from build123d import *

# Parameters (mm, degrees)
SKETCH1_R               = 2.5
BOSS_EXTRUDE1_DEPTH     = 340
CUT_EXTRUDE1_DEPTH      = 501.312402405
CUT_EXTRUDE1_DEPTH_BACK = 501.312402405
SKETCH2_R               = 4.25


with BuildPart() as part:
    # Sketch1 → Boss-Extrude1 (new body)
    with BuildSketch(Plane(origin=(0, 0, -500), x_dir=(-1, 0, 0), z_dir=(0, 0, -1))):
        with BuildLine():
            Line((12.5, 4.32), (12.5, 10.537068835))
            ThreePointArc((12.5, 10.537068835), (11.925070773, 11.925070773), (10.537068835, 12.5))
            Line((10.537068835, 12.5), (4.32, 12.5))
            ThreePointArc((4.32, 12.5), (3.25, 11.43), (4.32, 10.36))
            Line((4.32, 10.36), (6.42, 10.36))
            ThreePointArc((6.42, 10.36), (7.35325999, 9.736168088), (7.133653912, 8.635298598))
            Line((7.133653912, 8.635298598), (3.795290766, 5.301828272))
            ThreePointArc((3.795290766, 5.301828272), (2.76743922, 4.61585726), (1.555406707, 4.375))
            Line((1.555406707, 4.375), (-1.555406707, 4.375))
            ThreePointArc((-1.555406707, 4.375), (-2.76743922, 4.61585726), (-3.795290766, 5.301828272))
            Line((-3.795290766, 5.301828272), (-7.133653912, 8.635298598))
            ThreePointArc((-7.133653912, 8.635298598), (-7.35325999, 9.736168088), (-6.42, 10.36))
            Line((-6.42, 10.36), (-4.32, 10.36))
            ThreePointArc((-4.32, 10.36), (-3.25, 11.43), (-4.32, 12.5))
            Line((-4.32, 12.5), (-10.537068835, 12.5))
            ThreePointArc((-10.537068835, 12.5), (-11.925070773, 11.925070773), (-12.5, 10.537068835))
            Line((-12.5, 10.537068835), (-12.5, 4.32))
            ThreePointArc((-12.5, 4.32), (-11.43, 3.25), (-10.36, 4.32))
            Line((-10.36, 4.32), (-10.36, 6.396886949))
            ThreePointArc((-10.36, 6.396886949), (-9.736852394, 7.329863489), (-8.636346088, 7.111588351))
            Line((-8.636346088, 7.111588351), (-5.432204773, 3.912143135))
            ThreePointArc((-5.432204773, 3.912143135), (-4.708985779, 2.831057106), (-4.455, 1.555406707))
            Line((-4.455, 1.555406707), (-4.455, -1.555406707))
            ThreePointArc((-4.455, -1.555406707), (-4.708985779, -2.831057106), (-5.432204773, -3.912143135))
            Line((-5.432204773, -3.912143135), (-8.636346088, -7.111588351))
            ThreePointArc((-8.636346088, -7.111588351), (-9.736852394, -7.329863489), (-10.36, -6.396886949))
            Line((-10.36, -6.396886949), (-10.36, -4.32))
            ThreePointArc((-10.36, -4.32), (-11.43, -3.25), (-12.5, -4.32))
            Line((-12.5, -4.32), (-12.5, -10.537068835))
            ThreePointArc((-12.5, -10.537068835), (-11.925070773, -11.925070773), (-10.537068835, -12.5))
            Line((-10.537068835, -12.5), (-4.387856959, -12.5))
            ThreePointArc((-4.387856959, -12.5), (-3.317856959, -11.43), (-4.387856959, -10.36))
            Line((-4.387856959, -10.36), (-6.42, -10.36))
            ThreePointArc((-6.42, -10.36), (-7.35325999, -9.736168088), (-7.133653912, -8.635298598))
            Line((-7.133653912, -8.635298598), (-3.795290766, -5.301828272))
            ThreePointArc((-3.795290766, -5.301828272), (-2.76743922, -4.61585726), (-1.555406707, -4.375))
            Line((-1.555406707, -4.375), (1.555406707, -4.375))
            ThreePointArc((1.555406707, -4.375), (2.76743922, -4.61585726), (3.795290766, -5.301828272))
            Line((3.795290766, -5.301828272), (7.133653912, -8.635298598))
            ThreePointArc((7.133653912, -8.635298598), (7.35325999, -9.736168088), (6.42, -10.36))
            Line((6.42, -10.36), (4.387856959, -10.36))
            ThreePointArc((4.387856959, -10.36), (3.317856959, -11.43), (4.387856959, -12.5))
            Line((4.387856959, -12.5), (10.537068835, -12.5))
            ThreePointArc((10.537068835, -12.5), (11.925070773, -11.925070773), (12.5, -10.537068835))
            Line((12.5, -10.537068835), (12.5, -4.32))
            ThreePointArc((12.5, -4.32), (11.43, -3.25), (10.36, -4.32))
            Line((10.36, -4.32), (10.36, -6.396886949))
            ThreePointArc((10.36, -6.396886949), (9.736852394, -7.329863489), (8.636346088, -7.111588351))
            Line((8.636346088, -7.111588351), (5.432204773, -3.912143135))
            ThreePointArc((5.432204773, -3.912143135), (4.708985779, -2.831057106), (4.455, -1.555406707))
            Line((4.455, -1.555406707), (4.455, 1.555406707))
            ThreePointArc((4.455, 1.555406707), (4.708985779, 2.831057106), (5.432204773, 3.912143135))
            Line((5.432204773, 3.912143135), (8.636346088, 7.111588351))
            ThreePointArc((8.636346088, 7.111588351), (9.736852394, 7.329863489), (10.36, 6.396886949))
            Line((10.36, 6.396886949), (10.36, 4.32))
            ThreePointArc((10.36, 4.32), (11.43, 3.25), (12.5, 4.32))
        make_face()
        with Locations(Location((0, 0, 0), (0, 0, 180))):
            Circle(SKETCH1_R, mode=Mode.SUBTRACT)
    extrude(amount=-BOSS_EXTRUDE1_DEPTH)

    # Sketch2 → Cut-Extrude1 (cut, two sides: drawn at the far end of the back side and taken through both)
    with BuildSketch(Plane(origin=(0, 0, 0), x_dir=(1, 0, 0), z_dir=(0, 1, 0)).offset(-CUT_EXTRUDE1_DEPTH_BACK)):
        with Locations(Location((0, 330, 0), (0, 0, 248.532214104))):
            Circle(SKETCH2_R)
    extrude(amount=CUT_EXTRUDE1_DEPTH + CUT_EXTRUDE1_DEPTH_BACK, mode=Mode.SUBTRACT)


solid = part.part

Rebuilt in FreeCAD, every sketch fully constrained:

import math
import FreeCAD as App
import Part
import Sketcher
from FreeCAD import Vector

doc = App.newDocument("Part")
params = doc.addObject("Spreadsheet::Sheet", "Params")
for row, (alias, value) in enumerate([
    ("sketch1_diameter", "5 mm"),
    ("sketch1_radius", "1.07 mm"),
    ("sketch1_radius2", "1.01 mm"),
    ("sketch1_radius3", "3.17 mm"),
    ("sketch1_width", "2.1 mm"),
    ("pad1_length", "340 mm"),
    ("sketch2_diameter", "8.5 mm"),
], start=1):
    params.set(f"A{row}", alias)
    params.set(f"B{row}", "=" + value)
    params.setAlias(f"B{row}", alias)

body = doc.addObject("PartDesign::Body", "Body")

# Sketch on XY plane
sketch1 = doc.addObject("Sketcher::SketchObject", "Sketch")
body.addObject(sketch1)
sketch1.AttachmentSupport = (doc.XY_Plane, [""])
sketch1.MapMode = "FlatFace"
sketch1.AttachmentOffset = App.Placement(Vector(0, 0, -500), App.Rotation())
sketch1.addGeometry(Part.LineSegment(Vector(-12.5, 4.3, 0), Vector(-12.5, 10.5, 0)), False)
sketch1.addGeometry(Part.ArcOfCircle(Part.Circle(Vector(-10.5, 10.5, 0), Vector(0, 0, 1), 2), math.radians(90), math.radians(180)), False)
sketch1.addGeometry(Part.LineSegment(Vector(-10.5, 12.5, 0), Vector(-4.3, 12.5, 0)), False)
sketch1.addGeometry(Part.ArcOfCircle(Part.Circle(Vector(-4.3, 11.4, 0), Vector(0, 0, 1), 1.1), math.radians(-90), math.radians(90)), False)
sketch1.addGeometry(Part.LineSegment(Vector(-4.3, 10.4, 0), Vector(-6.4, 10.4, 0)), False)
sketch1.addGeometry(Part.ArcOfCircle(Part.Circle(Vector(-6.4, 9.3, 0), Vector(0, 0, 1), 1), math.radians(90), math.radians(225)), False)
sketch1.addGeometry(Part.LineSegment(Vector(-7.1, 8.6, 0), Vector(-3.8, 5.3, 0)), False)
sketch1.addGeometry(Part.ArcOfCircle(Part.Circle(Vector(-1.6, 7.5, 0), Vector(0, 0, 1), 3.2), math.radians(-135), math.radians(-90)), False)
sketch1.addGeometry(Part.LineSegment(Vector(-1.6, 4.4, 0), Vector(1.6, 4.4, 0)), False)
sketch1.addGeometry(Part.ArcOfCircle(Part.Circle(Vector(1.6, 7.5, 0), Vector(0, 0, 1), 3.2), math.radians(-90), math.radians(-45)), False)
sketch1.addGeometry(Part.LineSegment(Vector(3.8, 5.3, 0), Vector(7.1, 8.6, 0)), False)
sketch1.addGeometry(Part.ArcOfCircle(Part.Circle(Vector(6.4, 9.3, 0), Vector(0, 0, 1), 1), math.radians(-45), math.radians(90)), False)
sketch1.addGeometry(Part.LineSegment(Vector(6.4, 10.4, 0), Vector(4.3, 10.4, 0)), False)
sketch1.addGeometry(Part.ArcOfCircle(Part.Circle(Vector(4.3, 11.4, 0), Vector(0, 0, 1), 1.1), math.radians(90), math.radians(270)), False)
sketch1.addGeometry(Part.LineSegment(Vector(4.3, 12.5, 0), Vector(10.5, 12.5, 0)), False)
sketch1.addGeometry(Part.ArcOfCircle(Part.Circle(Vector(10.5, 10.5, 0), Vector(0, 0, 1), 2), math.radians(0), math.radians(90)), False)
sketch1.addGeometry(Part.LineSegment(Vector(12.5, 10.5, 0), Vector(12.5, 4.3, 0)), False)
sketch1.addGeometry(Part.ArcOfCircle(Part.Circle(Vector(11.4, 4.3, 0), Vector(0, 0, 1), 1.1), math.radians(180), math.radians(360)), False)
sketch1.addGeometry(Part.LineSegment(Vector(10.4, 4.3, 0), Vector(10.4, 6.4, 0)), False)
sketch1.addGeometry(Part.ArcOfCircle(Part.Circle(Vector(9.3, 6.4, 0), Vector(0, 0, 1), 1), math.radians(0), math.radians(135)), False)
sketch1.addGeometry(Part.LineSegment(Vector(8.6, 7.1, 0), Vector(5.4, 3.9, 0)), False)
sketch1.addGeometry(Part.ArcOfCircle(Part.Circle(Vector(7.8, 1.6, 0), Vector(0, 0, 1), 3.3), math.radians(135), math.radians(180)), False)
sketch1.addGeometry(Part.LineSegment(Vector(4.5, 1.6, 0), Vector(4.5, -1.6, 0)), False)
sketch1.addGeometry(Part.ArcOfCircle(Part.Circle(Vector(7.8, -1.6, 0), Vector(0, 0, 1), 3.3), math.radians(180), math.radians(225)), False)
sketch1.addGeometry(Part.LineSegment(Vector(5.4, -3.9, 0), Vector(8.6, -7.1, 0)), False)
sketch1.addGeometry(Part.ArcOfCircle(Part.Circle(Vector(9.3, -6.4, 0), Vector(0, 0, 1), 1), math.radians(-135), math.radians(0)), False)
sketch1.addGeometry(Part.LineSegment(Vector(10.4, -6.4, 0), Vector(10.4, -4.3, 0)), False)
sketch1.addGeometry(Part.ArcOfCircle(Part.Circle(Vector(11.4, -4.3, 0), Vector(0, 0, 1), 1.1), math.radians(0), math.radians(180)), False)
sketch1.addGeometry(Part.LineSegment(Vector(12.5, -4.3, 0), Vector(12.5, -10.5, 0)), False)
sketch1.addGeometry(Part.ArcOfCircle(Part.Circle(Vector(10.5, -10.5, 0), Vector(0, 0, 1), 2), math.radians(-90), math.radians(0)), False)
sketch1.addGeometry(Part.LineSegment(Vector(10.5, -12.5, 0), Vector(4.4, -12.5, 0)), False)
sketch1.addGeometry(Part.ArcOfCircle(Part.Circle(Vector(4.4, -11.4, 0), Vector(0, 0, 1), 1.1), math.radians(90), math.radians(270)), False)
sketch1.addGeometry(Part.LineSegment(Vector(4.4, -10.4, 0), Vector(6.4, -10.4, 0)), False)
sketch1.addGeometry(Part.ArcOfCircle(Part.Circle(Vector(6.4, -9.3, 0), Vector(0, 0, 1), 1), math.radians(-90), math.radians(45)), False)
sketch1.addGeometry(Part.LineSegment(Vector(7.1, -8.6, 0), Vector(3.8, -5.3, 0)), False)
sketch1.addGeometry(Part.ArcOfCircle(Part.Circle(Vector(1.6, -7.5, 0), Vector(0, 0, 1), 3.2), math.radians(45), math.radians(90)), False)
sketch1.addGeometry(Part.LineSegment(Vector(1.6, -4.4, 0), Vector(-1.6, -4.4, 0)), False)
sketch1.addGeometry(Part.ArcOfCircle(Part.Circle(Vector(-1.6, -7.5, 0), Vector(0, 0, 1), 3.2), math.radians(90), math.radians(135)), False)
sketch1.addGeometry(Part.LineSegment(Vector(-3.8, -5.3, 0), Vector(-7.1, -8.6, 0)), False)
sketch1.addGeometry(Part.ArcOfCircle(Part.Circle(Vector(-6.4, -9.3, 0), Vector(0, 0, 1), 1), math.radians(135), math.radians(270)), False)
sketch1.addGeometry(Part.LineSegment(Vector(-6.4, -10.4, 0), Vector(-4.4, -10.4, 0)), False)
sketch1.addGeometry(Part.ArcOfCircle(Part.Circle(Vector(-4.4, -11.4, 0), Vector(0, 0, 1), 1.1), math.radians(-90), math.radians(90)), False)
sketch1.addGeometry(Part.LineSegment(Vector(-4.4, -12.5, 0), Vector(-10.5, -12.5, 0)), False)
sketch1.addGeometry(Part.ArcOfCircle(Part.Circle(Vector(-10.5, -10.5, 0), Vector(0, 0, 1), 2), math.radians(180), math.radians(270)), False)
sketch1.addGeometry(Part.LineSegment(Vector(-12.5, -10.5, 0), Vector(-12.5, -4.3, 0)), False)
sketch1.addGeometry(Part.ArcOfCircle(Part.Circle(Vector(-11.4, -4.3, 0), Vector(0, 0, 1), 1.1), math.radians(0), math.radians(180)), False)
sketch1.addGeometry(Part.LineSegment(Vector(-10.4, -4.3, 0), Vector(-10.4, -6.4, 0)), False)
sketch1.addGeometry(Part.ArcOfCircle(Part.Circle(Vector(-9.3, -6.4, 0), Vector(0, 0, 1), 1), math.radians(-180), math.radians(-45)), False)
sketch1.addGeometry(Part.LineSegment(Vector(-8.6, -7.1, 0), Vector(-5.4, -3.9, 0)), False)
sketch1.addGeometry(Part.ArcOfCircle(Part.Circle(Vector(-7.8, -1.6, 0), Vector(0, 0, 1), 3.3), math.radians(-45), math.radians(0)), False)
sketch1.addGeometry(Part.LineSegment(Vector(-4.5, -1.6, 0), Vector(-4.5, 1.6, 0)), False)
sketch1.addGeometry(Part.ArcOfCircle(Part.Circle(Vector(-7.8, 1.6, 0), Vector(0, 0, 1), 3.3), math.radians(0), math.radians(45)), False)
sketch1.addGeometry(Part.LineSegment(Vector(-5.4, 3.9, 0), Vector(-8.6, 7.1, 0)), False)
sketch1.addGeometry(Part.ArcOfCircle(Part.Circle(Vector(-9.3, 6.4, 0), Vector(0, 0, 1), 1), math.radians(45), math.radians(180)), False)
sketch1.addGeometry(Part.LineSegment(Vector(-10.4, 6.4, 0), Vector(-10.4, 4.3, 0)), False)
sketch1.addGeometry(Part.ArcOfCircle(Part.Circle(Vector(-11.4, 4.3, 0), Vector(0, 0, 1), 1.1), math.radians(180), math.radians(360)), False)
sketch1.addGeometry(Part.Circle(Vector(0, 0, 0), Vector(0, 0, 1), 2.5), False)
sketch1.addConstraint(Sketcher.Constraint("Tangent", 0, 2, 1, 2))
sketch1.addConstraint(Sketcher.Constraint("Tangent", 1, 1, 2, 1))
sketch1.addConstraint(Sketcher.Constraint("Tangent", 2, 2, 3, 2))
sketch1.addConstraint(Sketcher.Constraint("Tangent", 3, 1, 4, 1))
sketch1.addConstraint(Sketcher.Constraint("Tangent", 4, 2, 5, 1))
sketch1.addConstraint(Sketcher.Constraint("Tangent", 5, 2, 6, 1))
sketch1.addConstraint(Sketcher.Constraint("Tangent", 6, 2, 7, 1))
sketch1.addConstraint(Sketcher.Constraint("Tangent", 7, 2, 8, 1))
sketch1.addConstraint(Sketcher.Constraint("Tangent", 8, 2, 9, 1))
sketch1.addConstraint(Sketcher.Constraint("Tangent", 9, 2, 10, 1))
sketch1.addConstraint(Sketcher.Constraint("Tangent", 10, 2, 11, 1))
sketch1.addConstraint(Sketcher.Constraint("Tangent", 11, 2, 12, 1))
sketch1.addConstraint(Sketcher.Constraint("Tangent", 12, 2, 13, 2))
sketch1.addConstraint(Sketcher.Constraint("Tangent", 13, 1, 14, 1))
sketch1.addConstraint(Sketcher.Constraint("Tangent", 14, 2, 15, 2))
sketch1.addConstraint(Sketcher.Constraint("Tangent", 15, 1, 16, 1))
sketch1.addConstraint(Sketcher.Constraint("Tangent", 16, 2, 17, 2))
sketch1.addConstraint(Sketcher.Constraint("Tangent", 17, 1, 18, 1))
sketch1.addConstraint(Sketcher.Constraint("Tangent", 18, 2, 19, 1))
sketch1.addConstraint(Sketcher.Constraint("Tangent", 19, 2, 20, 1))
sketch1.addConstraint(Sketcher.Constraint("Tangent", 20, 2, 21, 1))
sketch1.addConstraint(Sketcher.Constraint("Tangent", 21, 2, 22, 1))
sketch1.addConstraint(Sketcher.Constraint("Tangent", 22, 2, 23, 1))
sketch1.addConstraint(Sketcher.Constraint("Tangent", 23, 2, 24, 1))
sketch1.addConstraint(Sketcher.Constraint("Tangent", 24, 2, 25, 1))
sketch1.addConstraint(Sketcher.Constraint("Tangent", 25, 2, 26, 1))
sketch1.addConstraint(Sketcher.Constraint("Tangent", 26, 2, 27, 2))
sketch1.addConstraint(Sketcher.Constraint("Tangent", 27, 1, 28, 1))
sketch1.addConstraint(Sketcher.Constraint("Tangent", 28, 2, 29, 2))
sketch1.addConstraint(Sketcher.Constraint("Tangent", 29, 1, 30, 1))
sketch1.addConstraint(Sketcher.Constraint("Tangent", 30, 2, 31, 2))
sketch1.addConstraint(Sketcher.Constraint("Tangent", 31, 1, 32, 1))
sketch1.addConstraint(Sketcher.Constraint("Tangent", 32, 2, 33, 1))
sketch1.addConstraint(Sketcher.Constraint("Tangent", 33, 2, 34, 1))
sketch1.addConstraint(Sketcher.Constraint("Tangent", 34, 2, 35, 1))
sketch1.addConstraint(Sketcher.Constraint("Tangent", 35, 2, 36, 1))
sketch1.addConstraint(Sketcher.Constraint("Tangent", 36, 2, 37, 1))
sketch1.addConstraint(Sketcher.Constraint("Tangent", 37, 2, 38, 1))
sketch1.addConstraint(Sketcher.Constraint("Tangent", 38, 2, 39, 1))
sketch1.addConstraint(Sketcher.Constraint("Tangent", 39, 2, 40, 1))
sketch1.addConstraint(Sketcher.Constraint("Tangent", 40, 2, 41, 2))
sketch1.addConstraint(Sketcher.Constraint("Tangent", 41, 1, 42, 1))
sketch1.addConstraint(Sketcher.Constraint("Tangent", 42, 2, 43, 2))
sketch1.addConstraint(Sketcher.Constraint("Tangent", 43, 1, 44, 1))
sketch1.addConstraint(Sketcher.Constraint("Tangent", 44, 2, 45, 2))
sketch1.addConstraint(Sketcher.Constraint("Tangent", 45, 1, 46, 1))
sketch1.addConstraint(Sketcher.Constraint("Tangent", 46, 2, 47, 1))
sketch1.addConstraint(Sketcher.Constraint("Tangent", 47, 2, 48, 1))
sketch1.addConstraint(Sketcher.Constraint("Tangent", 48, 2, 49, 1))
sketch1.addConstraint(Sketcher.Constraint("Tangent", 49, 2, 50, 1))
sketch1.addConstraint(Sketcher.Constraint("Tangent", 50, 2, 51, 1))
sketch1.addConstraint(Sketcher.Constraint("Tangent", 51, 2, 52, 1))
sketch1.addConstraint(Sketcher.Constraint("Tangent", 52, 2, 53, 1))
sketch1.addConstraint(Sketcher.Constraint("Tangent", 53, 2, 54, 1))
sketch1.addConstraint(Sketcher.Constraint("Tangent", 54, 2, 55, 2))
sketch1.addConstraint(Sketcher.Constraint("Tangent", 55, 1, 0, 1))
sketch1.addConstraint(Sketcher.Constraint("Vertical", 0))
sketch1.addConstraint(Sketcher.Constraint("Horizontal", 2))
sketch1.addConstraint(Sketcher.Constraint("Horizontal", 4))
sketch1.addConstraint(Sketcher.Constraint("Horizontal", 8))
sketch1.addConstraint(Sketcher.Constraint("Horizontal", 12))
sketch1.addConstraint(Sketcher.Constraint("Horizontal", 14))
sketch1.addConstraint(Sketcher.Constraint("Vertical", 16))
sketch1.addConstraint(Sketcher.Constraint("Vertical", 18))
sketch1.addConstraint(Sketcher.Constraint("Vertical", 22))
sketch1.addConstraint(Sketcher.Constraint("Vertical", 26))
sketch1.addConstraint(Sketcher.Constraint("Vertical", 28))
sketch1.addConstraint(Sketcher.Constraint("Horizontal", 30))
sketch1.addConstraint(Sketcher.Constraint("Horizontal", 32))
sketch1.addConstraint(Sketcher.Constraint("Horizontal", 36))
sketch1.addConstraint(Sketcher.Constraint("Horizontal", 40))
sketch1.addConstraint(Sketcher.Constraint("Horizontal", 42))
sketch1.addConstraint(Sketcher.Constraint("Vertical", 44))
sketch1.addConstraint(Sketcher.Constraint("Vertical", 46))
sketch1.addConstraint(Sketcher.Constraint("Vertical", 50))
sketch1.addConstraint(Sketcher.Constraint("Vertical", 54))
sketch1.addConstraint(Sketcher.Constraint("Coincident", 56, 3, -1, 1))
sketch1.addConstraint(Sketcher.Constraint("Equal", 7, 9))
sketch1.addConstraint(Sketcher.Constraint("Equal", 5, 11))
sketch1.addConstraint(Sketcher.Constraint("Equal", 3, 13))
sketch1.addConstraint(Sketcher.Constraint("Equal", 1, 15))
sketch1.addConstraint(Sketcher.Constraint("Equal", 13, 17))
sketch1.addConstraint(Sketcher.Constraint("Equal", 11, 19))
sketch1.addConstraint(Sketcher.Constraint("Equal", 21, 23))
sketch1.addConstraint(Sketcher.Constraint("Equal", 19, 25))
sketch1.addConstraint(Sketcher.Constraint("Equal", 17, 27))
sketch1.addConstraint(Sketcher.Constraint("Equal", 15, 29))
sketch1.addConstraint(Sketcher.Constraint("Equal", 27, 31))
sketch1.addConstraint(Sketcher.Constraint("Equal", 25, 33))
sketch1.addConstraint(Sketcher.Constraint("Equal", 9, 35))
sketch1.addConstraint(Sketcher.Constraint("Equal", 35, 37))
sketch1.addConstraint(Sketcher.Constraint("Equal", 33, 39))
sketch1.addConstraint(Sketcher.Constraint("Equal", 31, 41))
sketch1.addConstraint(Sketcher.Constraint("Equal", 29, 43))
sketch1.addConstraint(Sketcher.Constraint("Equal", 41, 45))
sketch1.addConstraint(Sketcher.Constraint("Equal", 39, 47))
sketch1.addConstraint(Sketcher.Constraint("Equal", 23, 49))
sketch1.addConstraint(Sketcher.Constraint("Equal", 49, 51))
sketch1.addConstraint(Sketcher.Constraint("Equal", 47, 53))
sketch1.addConstraint(Sketcher.Constraint("Equal", 45, 55))
sketch1.addConstraint(Sketcher.Constraint("Symmetric", 1, 3, 29, 3, -1, 1))
sketch1.addConstraint(Sketcher.Constraint("Symmetric", 7, 3, 35, 3, -1, 1))
sketch1.addConstraint(Sketcher.Constraint("Symmetric", 11, 3, 39, 3, -1, 1))
sketch1.addConstraint(Sketcher.Constraint("Symmetric", 17, 3, 45, 3, -1, 1))
sketch1.addConstraint(Sketcher.Constraint("Symmetric", 21, 3, 49, 3, -1, 1))
sketch1.addConstraint(Sketcher.Constraint("Symmetric", 23, 2, 51, 2, -1, 1))
sketch1.addConstraint(Sketcher.Constraint("Symmetric", 5, 3, 11, 3, -2))
sketch1.addConstraint(Sketcher.Constraint("Symmetric", 27, 3, 45, 3, -2))
sketch1.addConstraint(Sketcher.Constraint("Symmetric", 34, 2, 37, 2, -2))
sketch1.addConstraint(Sketcher.Constraint("Symmetric", 24, 2, 47, 2, -2))
sketch1.addConstraint(Sketcher.Constraint("Parallel", 10, 20))
sketch1.addConstraint(Sketcher.Constraint("Parallel", 6, 24))
sketch1.addConstraint(Sketcher.Constraint("Parallel", 20, 38))
sketch1.addConstraint(Sketcher.Constraint("Horizontal", 17, 3, 55, 3))
sketch1.addConstraint(Sketcher.Constraint("Equal", 4, 12))
sketch1.addConstraint(Sketcher.Constraint("Equal", 32, 40))
sketch1.addConstraint(Sketcher.Constraint("Equal", 14, 0))
sketch1.addConstraint(Sketcher.Constraint("Equal", 36, 22))
sketch1.addConstraint(Sketcher.Constraint("Diameter", 56, 5.0))
sketch1.addConstraint(Sketcher.Constraint("Radius", 3, 1.07))
sketch1.addConstraint(Sketcher.Constraint("Radius", 5, 1.01))
sketch1.addConstraint(Sketcher.Constraint("Radius", 7, 3.17))
sketch1.addConstraint(Sketcher.Constraint("DistanceX", 4, 2, 4, 1, 2.1))
sketch1.addConstraint(Sketcher.Constraint("DistanceX", 0, 2, -1, 1, 12.5))
sketch1.addConstraint(Sketcher.Constraint("DistanceY", -1, 1, 1, 1, 12.5))
sketch1.addConstraint(Sketcher.Constraint("DistanceX", 3, 3, -1, 1, 4.32))
sketch1.addConstraint(Sketcher.Constraint("Radius", 1, 1.962931))
sketch1.addConstraint(Sketcher.Constraint("DistanceY", -1, 1, 7, 3, 7.545))
sketch1.addConstraint(Sketcher.Constraint("DistanceX", -1, 1, 21, 2, 4.455))
sketch1.addConstraint(Sketcher.Constraint("Radius", 21, 3.330487))
sketch1.addConstraint(Sketcher.Constraint("Distance", 6, 4.7177))
sketch1.addConstraint(Sketcher.Constraint("DistanceX", 30, 2, 30, 1, 6.149212))
sketch1.setExpression("Constraints[118]", "Params.sketch1_diameter")
sketch1.setExpression("Constraints[119]", "Params.sketch1_radius")
sketch1.setExpression("Constraints[120]", "Params.sketch1_radius2")
sketch1.setExpression("Constraints[121]", "Params.sketch1_radius3")
sketch1.setExpression("Constraints[122]", "Params.sketch1_width")
pad1 = doc.addObject("PartDesign::Pad", "Pad")
body.addObject(pad1)
pad1.Profile = sketch1
pad1.setExpression("Length", "Params.pad1_length")

# Sketch on XZ plane
sketch2 = doc.addObject("Sketcher::SketchObject", "Sketch001")
body.addObject(sketch2)
sketch2.AttachmentSupport = (doc.XZ_Plane, [""])
sketch2.MapMode = "FlatFace"
sketch2.addGeometry(Part.Circle(Vector(0, -330, 0), Vector(0, 0, 1), 4.2), False)
sketch2.addConstraint(Sketcher.Constraint("PointOnObject", 0, 3, -2))
sketch2.addConstraint(Sketcher.Constraint("Diameter", 0, 8.5))
sketch2.addConstraint(Sketcher.Constraint("DistanceY", 0, 3, -1, 1, 330.0))
sketch2.setExpression("Constraints[1]", "Params.sketch2_diameter")
pocket1 = doc.addObject("PartDesign::Pocket", "Pocket")
body.addObject(pocket1)
pocket1.Profile = sketch2
pocket1.Type = "ThroughAll"
pocket1.Midplane = True

doc.recompute()
